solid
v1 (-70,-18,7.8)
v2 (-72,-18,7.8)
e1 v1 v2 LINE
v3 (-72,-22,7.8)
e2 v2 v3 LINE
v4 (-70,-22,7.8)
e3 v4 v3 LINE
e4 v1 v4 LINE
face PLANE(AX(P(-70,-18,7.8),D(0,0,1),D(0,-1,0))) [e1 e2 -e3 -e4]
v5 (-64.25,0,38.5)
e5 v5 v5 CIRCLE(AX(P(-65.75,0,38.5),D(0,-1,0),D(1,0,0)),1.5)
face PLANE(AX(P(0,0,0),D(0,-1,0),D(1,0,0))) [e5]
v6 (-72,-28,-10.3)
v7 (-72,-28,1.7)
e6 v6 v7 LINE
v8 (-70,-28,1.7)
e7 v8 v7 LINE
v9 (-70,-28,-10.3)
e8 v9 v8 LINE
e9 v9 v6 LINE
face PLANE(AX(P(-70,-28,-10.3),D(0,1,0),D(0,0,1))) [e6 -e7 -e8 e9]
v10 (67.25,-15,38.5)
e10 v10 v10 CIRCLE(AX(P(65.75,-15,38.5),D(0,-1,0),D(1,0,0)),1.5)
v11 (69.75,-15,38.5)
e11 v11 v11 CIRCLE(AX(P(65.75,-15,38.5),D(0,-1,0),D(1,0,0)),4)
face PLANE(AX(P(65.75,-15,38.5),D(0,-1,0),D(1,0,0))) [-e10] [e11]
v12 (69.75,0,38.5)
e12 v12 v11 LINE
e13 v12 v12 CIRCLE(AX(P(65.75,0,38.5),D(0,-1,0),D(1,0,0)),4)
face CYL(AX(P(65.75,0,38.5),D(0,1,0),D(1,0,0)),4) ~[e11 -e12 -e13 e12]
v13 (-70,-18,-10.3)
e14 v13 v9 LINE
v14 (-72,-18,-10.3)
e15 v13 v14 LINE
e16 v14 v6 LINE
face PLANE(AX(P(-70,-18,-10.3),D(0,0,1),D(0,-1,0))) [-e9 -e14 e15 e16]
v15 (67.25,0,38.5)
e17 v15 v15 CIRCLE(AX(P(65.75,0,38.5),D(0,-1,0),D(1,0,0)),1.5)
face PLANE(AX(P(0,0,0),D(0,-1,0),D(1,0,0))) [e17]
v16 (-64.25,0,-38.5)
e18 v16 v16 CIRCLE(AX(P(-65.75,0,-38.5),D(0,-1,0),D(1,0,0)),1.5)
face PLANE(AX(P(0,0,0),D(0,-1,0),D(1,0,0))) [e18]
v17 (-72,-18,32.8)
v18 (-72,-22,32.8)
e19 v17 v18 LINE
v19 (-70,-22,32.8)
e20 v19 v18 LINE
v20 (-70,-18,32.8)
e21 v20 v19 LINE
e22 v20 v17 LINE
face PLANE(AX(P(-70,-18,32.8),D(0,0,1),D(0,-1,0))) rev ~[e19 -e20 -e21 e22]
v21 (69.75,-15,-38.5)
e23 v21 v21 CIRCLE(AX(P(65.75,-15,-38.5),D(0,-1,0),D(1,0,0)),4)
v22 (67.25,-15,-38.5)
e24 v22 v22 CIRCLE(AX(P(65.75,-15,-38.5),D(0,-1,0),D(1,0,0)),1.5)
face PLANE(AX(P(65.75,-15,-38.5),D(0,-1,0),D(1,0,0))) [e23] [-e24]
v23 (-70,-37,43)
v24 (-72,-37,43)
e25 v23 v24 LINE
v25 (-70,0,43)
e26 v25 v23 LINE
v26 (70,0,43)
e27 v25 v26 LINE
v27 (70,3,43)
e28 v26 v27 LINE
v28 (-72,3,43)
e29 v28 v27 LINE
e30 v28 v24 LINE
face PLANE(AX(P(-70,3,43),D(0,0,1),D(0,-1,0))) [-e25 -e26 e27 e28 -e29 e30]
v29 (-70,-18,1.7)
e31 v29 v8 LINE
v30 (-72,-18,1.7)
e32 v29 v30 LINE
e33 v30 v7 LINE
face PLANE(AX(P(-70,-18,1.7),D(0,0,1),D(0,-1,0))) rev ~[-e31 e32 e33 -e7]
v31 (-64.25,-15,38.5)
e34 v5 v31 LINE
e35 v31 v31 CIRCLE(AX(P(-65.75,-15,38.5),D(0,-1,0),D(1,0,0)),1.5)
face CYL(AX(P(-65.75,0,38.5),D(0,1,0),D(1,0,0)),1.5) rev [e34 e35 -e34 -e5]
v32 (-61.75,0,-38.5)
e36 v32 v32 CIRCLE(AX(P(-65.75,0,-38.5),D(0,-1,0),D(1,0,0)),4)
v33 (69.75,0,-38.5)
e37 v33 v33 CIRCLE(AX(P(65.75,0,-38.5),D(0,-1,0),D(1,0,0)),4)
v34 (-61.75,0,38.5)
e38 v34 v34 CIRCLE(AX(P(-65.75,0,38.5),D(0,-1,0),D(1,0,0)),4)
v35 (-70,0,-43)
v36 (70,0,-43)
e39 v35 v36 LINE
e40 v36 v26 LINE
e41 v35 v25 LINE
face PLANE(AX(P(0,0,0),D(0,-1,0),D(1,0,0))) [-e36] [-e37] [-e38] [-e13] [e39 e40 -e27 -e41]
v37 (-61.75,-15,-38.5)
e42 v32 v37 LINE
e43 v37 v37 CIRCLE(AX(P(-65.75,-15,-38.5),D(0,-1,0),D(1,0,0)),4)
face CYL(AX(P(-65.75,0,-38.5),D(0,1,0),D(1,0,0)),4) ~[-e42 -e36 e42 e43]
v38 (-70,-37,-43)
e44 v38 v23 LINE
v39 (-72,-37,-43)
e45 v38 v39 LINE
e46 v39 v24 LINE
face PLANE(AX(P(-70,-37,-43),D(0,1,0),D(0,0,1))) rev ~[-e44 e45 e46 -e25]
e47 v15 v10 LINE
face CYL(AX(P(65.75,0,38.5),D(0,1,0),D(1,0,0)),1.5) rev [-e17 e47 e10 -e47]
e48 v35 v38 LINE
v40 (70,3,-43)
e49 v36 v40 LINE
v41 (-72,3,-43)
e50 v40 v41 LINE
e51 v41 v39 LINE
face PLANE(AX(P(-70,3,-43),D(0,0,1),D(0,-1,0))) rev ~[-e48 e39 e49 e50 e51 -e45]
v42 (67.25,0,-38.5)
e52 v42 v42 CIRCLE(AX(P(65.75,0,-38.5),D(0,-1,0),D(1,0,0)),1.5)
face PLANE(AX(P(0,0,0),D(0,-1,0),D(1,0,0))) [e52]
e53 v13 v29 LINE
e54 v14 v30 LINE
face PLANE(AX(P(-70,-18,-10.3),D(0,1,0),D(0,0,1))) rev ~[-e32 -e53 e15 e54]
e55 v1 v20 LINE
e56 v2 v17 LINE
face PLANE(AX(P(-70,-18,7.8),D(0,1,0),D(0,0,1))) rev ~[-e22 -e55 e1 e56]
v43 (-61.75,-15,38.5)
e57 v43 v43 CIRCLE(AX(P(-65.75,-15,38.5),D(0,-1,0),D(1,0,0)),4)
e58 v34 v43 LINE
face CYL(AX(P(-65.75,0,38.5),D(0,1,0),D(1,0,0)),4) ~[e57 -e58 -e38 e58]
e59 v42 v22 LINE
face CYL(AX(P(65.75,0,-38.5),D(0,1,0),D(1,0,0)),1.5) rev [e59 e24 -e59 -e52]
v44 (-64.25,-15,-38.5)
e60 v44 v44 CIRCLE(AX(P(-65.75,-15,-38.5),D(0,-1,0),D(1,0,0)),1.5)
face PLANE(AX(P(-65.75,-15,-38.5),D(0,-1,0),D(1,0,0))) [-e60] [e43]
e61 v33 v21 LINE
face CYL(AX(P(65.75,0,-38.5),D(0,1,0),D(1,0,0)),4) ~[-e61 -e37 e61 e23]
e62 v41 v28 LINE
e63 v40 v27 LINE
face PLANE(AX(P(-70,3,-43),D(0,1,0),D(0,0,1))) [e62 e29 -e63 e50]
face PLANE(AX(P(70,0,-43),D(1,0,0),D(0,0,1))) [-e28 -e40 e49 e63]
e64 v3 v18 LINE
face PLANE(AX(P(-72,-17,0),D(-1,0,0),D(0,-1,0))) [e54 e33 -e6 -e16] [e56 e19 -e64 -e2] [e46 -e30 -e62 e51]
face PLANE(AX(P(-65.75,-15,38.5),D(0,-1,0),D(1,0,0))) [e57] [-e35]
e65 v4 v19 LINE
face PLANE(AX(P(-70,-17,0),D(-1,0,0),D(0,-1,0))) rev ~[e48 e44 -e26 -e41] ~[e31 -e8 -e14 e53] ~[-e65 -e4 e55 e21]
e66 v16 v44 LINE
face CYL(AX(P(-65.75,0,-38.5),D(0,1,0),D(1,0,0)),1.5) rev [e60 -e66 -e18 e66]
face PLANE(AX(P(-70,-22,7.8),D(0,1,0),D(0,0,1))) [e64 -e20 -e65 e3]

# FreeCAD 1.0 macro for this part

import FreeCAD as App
import Part
import Sketcher

V = App.Vector
Q = App.Units.Quantity

doc = App.newDocument("Part")
body = doc.addObject("PartDesign::Body", "Body")

sketch1 = body.newObject("Sketcher::SketchObject", "Sketch")
sketch1.AttachmentSupport = (doc.getObject("XZ_Plane"), [""])
sketch1.MapMode = "FlatFace"
sketch1.addGeometry(Part.LineSegment(V(-70, 43, 0), V(-70, -43, 0)), False)
sketch1.addGeometry(Part.LineSegment(V(-70, -43, 0), V(70, -43, 0)), False)
sketch1.addGeometry(Part.LineSegment(V(70, -43, 0), V(70, 43, 0)), False)
sketch1.addGeometry(Part.LineSegment(V(70, 43, 0), V(-70, 43, 0)), False)
sketch1.addConstraint(Sketcher.Constraint("Coincident", 0, 2, 1, 1))
sketch1.addConstraint(Sketcher.Constraint("Coincident", 1, 2, 2, 1))
sketch1.addConstraint(Sketcher.Constraint("Coincident", 2, 2, 3, 1))
sketch1.addConstraint(Sketcher.Constraint("Coincident", 3, 2, 0, 1))
sketch1.addConstraint(Sketcher.Constraint("Vertical", 0))
sketch1.addConstraint(Sketcher.Constraint("Horizontal", 1))
sketch1.addConstraint(Sketcher.Constraint("Vertical", 2))
sketch1.addConstraint(Sketcher.Constraint("Horizontal", 3))
sketch1.addConstraint(Sketcher.Constraint("Symmetric", 0, 2, 2, 2, -1, 1))
sketch1.addConstraint(Sketcher.Constraint("DistanceX", 1, 1, 1, 2, Q("140 mm")))
sketch1.addConstraint(Sketcher.Constraint("DistanceY", 0, 2, 0, 1, Q("86 mm")))
pad1 = body.newObject("PartDesign::Pad", "Pad")
pad1.Profile = sketch1
pad1.Length = 3
pad1.Reversed = True

sketch2 = body.newObject("Sketcher::SketchObject", "Sketch001")
sketch2.AttachmentSupport = (doc.getObject("XZ_Plane"), [""])
sketch2.MapMode = "FlatFace"
sketch2.addGeometry(Part.Circle(V(65.75, 38.5, 0), V(0, 0, 1), 4), False)
sketch2.addGeometry(Part.Circle(V(65.75, 38.5, 0), V(0, 0, 1), 1.5), False)
sketch2.addGeometry(Part.Circle(V(-65.75, 38.5, 0), V(0, 0, 1), 4), False)
sketch2.addGeometry(Part.Circle(V(-65.75, 38.5, 0), V(0, 0, 1), 1.5), False)
sketch2.addGeometry(Part.Circle(V(-65.75, -38.5, 0), V(0, 0, 1), 4), False)
sketch2.addGeometry(Part.Circle(V(-65.75, -38.5, 0), V(0, 0, 1), 1.5), False)
sketch2.addGeometry(Part.Circle(V(65.75, -38.5, 0), V(0, 0, 1), 4), False)
sketch2.addGeometry(Part.Circle(V(65.75, -38.5, 0), V(0, 0, 1), 1.5), False)
sketch2.addConstraint(Sketcher.Constraint("Coincident", 1, 3, 0, 3))
sketch2.addConstraint(Sketcher.Constraint("Coincident", 3, 3, 2, 3))
sketch2.addConstraint(Sketcher.Constraint("Coincident", 5, 3, 4, 3))
sketch2.addConstraint(Sketcher.Constraint("Coincident", 7, 3, 6, 3))
sketch2.addConstraint(Sketcher.Constraint("Equal", 0, 2))
sketch2.addConstraint(Sketcher.Constraint("Equal", 1, 3))
sketch2.addConstraint(Sketcher.Constraint("Equal", 2, 4))
sketch2.addConstraint(Sketcher.Constraint("Equal", 3, 5))
sketch2.addConstraint(Sketcher.Constraint("Equal", 4, 6))
sketch2.addConstraint(Sketcher.Constraint("Equal", 5, 7))
sketch2.addConstraint(Sketcher.Constraint("Symmetric", 0, 3, 4, 3, -1, 1))
sketch2.addConstraint(Sketcher.Constraint("Symmetric", 2, 3, 6, 3, -1, 1))
sketch2.addConstraint(Sketcher.Constraint("Symmetric", 0, 3, 2, 3, -2))
sketch2.addConstraint(Sketcher.Constraint("Diameter", 0, Q("8 mm")))
sketch2.addConstraint(Sketcher.Constraint("Diameter", 1, Q("3 mm")))
sketch2.addConstraint(Sketcher.Constraint("DistanceY", 4, 3, 2, 3, Q("77 mm")))
sketch2.addConstraint(Sketcher.Constraint("DistanceX", 2, 3, 0, 3, Q("131.5 mm")))
pad2 = body.newObject("PartDesign::Pad", "Pad001")
pad2.Profile = sketch2
pad2.Length = 15

sketch3 = body.newObject("Sketcher::SketchObject", "Sketch002")
sketch3.AttachmentSupport = (doc.getObject("YZ_Plane"), [""])
sketch3.MapMode = "FlatFace"
sketch3.AttachmentOffset = App.Placement(V(0, 0, -70), App.Rotation())
sketch3.addGeometry(Part.LineSegment(V(3, 43, 0), V(3, -43, 0)), False)
sketch3.addGeometry(Part.LineSegment(V(3, -43, 0), V(-37, -43, 0)), False)
sketch3.addGeometry(Part.LineSegment(V(-37, -43, 0), V(-37, 43, 0)), False)
sketch3.addGeometry(Part.LineSegment(V(-37, 43, 0), V(3, 43, 0)), False)
sketch3.addGeometry(Part.LineSegment(V(-28, -10.3, 0), V(-18, -10.3, 0)), False)
sketch3.addGeometry(Part.LineSegment(V(-18, -10.3, 0), V(-18, 1.7, 0)), False)
sketch3.addGeometry(Part.LineSegment(V(-18, 1.7, 0), V(-28, 1.7, 0)), False)
sketch3.addGeometry(Part.LineSegment(V(-28, 1.7, 0), V(-28, -10.3, 0)), False)
sketch3.addGeometry(Part.LineSegment(V(-22, 7.8, 0), V(-18, 7.8, 0)), False)
sketch3.addGeometry(Part.LineSegment(V(-18, 7.8, 0), V(-18, 32.8, 0)), False)
sketch3.addGeometry(Part.LineSegment(V(-18, 32.8, 0), V(-22, 32.8, 0)), False)
sketch3.addGeometry(Part.LineSegment(V(-22, 32.8, 0), V(-22, 7.8, 0)), False)
sketch3.addConstraint(Sketcher.Constraint("Coincident", 0, 2, 1, 1))
sketch3.addConstraint(Sketcher.Constraint("Coincident", 1, 2, 2, 1))
sketch3.addConstraint(Sketcher.Constraint("Coincident", 2, 2, 3, 1))
sketch3.addConstraint(Sketcher.Constraint("Coincident", 3, 2, 0, 1))
sketch3.addConstraint(Sketcher.Constraint("Coincident", 4, 2, 5, 1))
sketch3.addConstraint(Sketcher.Constraint("Coincident", 5, 2, 6, 1))
sketch3.addConstraint(Sketcher.Constraint("Coincident", 6, 2, 7, 1))
sketch3.addConstraint(Sketcher.Constraint("Coincident", 7, 2, 4, 1))
sketch3.addConstraint(Sketcher.Constraint("Coincident", 8, 2, 9, 1))
sketch3.addConstraint(Sketcher.Constraint("Coincident", 9, 2, 10, 1))
sketch3.addConstraint(Sketcher.Constraint("Coincident", 10, 2, 11, 1))
sketch3.addConstraint(Sketcher.Constraint("Coincident", 11, 2, 8, 1))
sketch3.addConstraint(Sketcher.Constraint("Vertical", 0))
sketch3.addConstraint(Sketcher.Constraint("Horizontal", 1))
sketch3.addConstraint(Sketcher.Constraint("Vertical", 2))
sketch3.addConstraint(Sketcher.Constraint("Horizontal", 3))
sketch3.addConstraint(Sketcher.Constraint("Horizontal", 4))
sketch3.addConstraint(Sketcher.Constraint("Vertical", 5))
sketch3.addConstraint(Sketcher.Constraint("Horizontal", 6))
sketch3.addConstraint(Sketcher.Constraint("Vertical", 7))
sketch3.addConstraint(Sketcher.Constraint("Horizontal", 8))
sketch3.addConstraint(Sketcher.Constraint("Vertical", 9))
sketch3.addConstraint(Sketcher.Constraint("Horizontal", 10))
sketch3.addConstraint(Sketcher.Constraint("Vertical", 11))
sketch3.addConstraint(Sketcher.Constraint("Vertical", 5, 2, 8, 2))
sketch3.addConstraint(Sketcher.Constraint("DistanceX", 1, 2, 1, 1, Q("40 mm")))
sketch3.addConstraint(Sketcher.Constraint("DistanceX", 4, 1, 4, 2, Q("10 mm")))
sketch3.addConstraint(Sketcher.Constraint("DistanceX", 8, 1, 8, 2, Q("4 mm")))
sketch3.addConstraint(Sketcher.Constraint("DistanceY", 0, 2, 0, 1, Q("86 mm")))
sketch3.addConstraint(Sketcher.Constraint("DistanceY", 5, 1, 5, 2, Q("12 mm")))
sketch3.addConstraint(Sketcher.Constraint("DistanceY", 9, 1, 9, 2, Q("25 mm")))
sketch3.addConstraint(Sketcher.Constraint("DistanceX", -1, 1, 0, 2, Q("3 mm")))
sketch3.addConstraint(Sketcher.Constraint("DistanceY", 0, 2, -1, 1, Q("43 mm")))
sketch3.addConstraint(Sketcher.Constraint("DistanceX", 4, 2, -1, 1, Q("18 mm")))
sketch3.addConstraint(Sketcher.Constraint("DistanceY", 4, 2, -1, 1, Q("10.3 mm")))
sketch3.addConstraint(Sketcher.Constraint("DistanceY", -1, 1, 8, 2, Q("7.8 mm")))
pad3 = body.newObject("PartDesign::Pad", "Pad002")
pad3.Profile = sketch3
pad3.Length = 2
pad3.Reversed = True

doc.recompute()
